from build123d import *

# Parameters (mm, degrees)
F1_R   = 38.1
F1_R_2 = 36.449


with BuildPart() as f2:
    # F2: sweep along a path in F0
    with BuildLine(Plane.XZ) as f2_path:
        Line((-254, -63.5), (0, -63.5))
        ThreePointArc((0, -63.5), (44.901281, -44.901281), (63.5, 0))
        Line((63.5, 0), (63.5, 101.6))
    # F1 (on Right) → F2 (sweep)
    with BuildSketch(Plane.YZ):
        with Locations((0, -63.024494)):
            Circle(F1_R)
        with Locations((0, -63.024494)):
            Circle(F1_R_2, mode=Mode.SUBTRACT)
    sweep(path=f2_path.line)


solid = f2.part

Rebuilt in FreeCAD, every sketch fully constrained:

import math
import FreeCAD as App
import Part
import Sketcher
from FreeCAD import Vector
Q = App.Units.Quantity

doc = App.newDocument("Part")
body = doc.addObject("PartDesign::Body", "Body")

sketch1 = body.newObject("Sketcher::SketchObject", "Sketch")
sketch1.AttachmentSupport = (doc.getObject("YZ_Plane"), [""])
sketch1.MapMode = "FlatFace"
sketch1.addGeometry(Part.Circle(Vector(0, -63, 0), Vector(0, 0, 1), 38), False)
sketch1.addGeometry(Part.Circle(Vector(0, -63, 0), Vector(0, 0, 1), 36), False)
sketch1.addConstraint(Sketcher.Constraint("Coincident", 1, 3, 0, 3))
sketch1.addConstraint(Sketcher.Constraint("PointOnObject", 0, 3, -2))
sketch1.addConstraint(Sketcher.Constraint("Diameter", 0, Q("3 in")))
sketch1.addConstraint(Sketcher.Constraint("Diameter", 1, Q("2.87 in")))
sketch1.addConstraint(Sketcher.Constraint("DistanceY", 0, 3, -1, 1, 63.024494))

sketch2 = body.newObject("Sketcher::SketchObject", "Sketch001")
sketch2.AttachmentSupport = (doc.getObject("XZ_Plane"), [""])
sketch2.MapMode = "FlatFace"
sketch2.addGeometry(Part.LineSegment(Vector(-254, -64, 0), Vector(0, -64, 0)), False)
sketch2.addGeometry(Part.ArcOfCircle(Part.Circle(Vector(0, 0, 0), Vector(0, 0, 1), 63), math.radians(-90), math.radians(0)), False)
sketch2.addGeometry(Part.LineSegment(Vector(64, 0, 0), Vector(64, 102, 0)), False)
sketch2.addConstraint(Sketcher.Constraint("Tangent", 0, 2, 1, 1))
sketch2.addConstraint(Sketcher.Constraint("Tangent", 1, 2, 2, 1))
sketch2.addConstraint(Sketcher.Constraint("Horizontal", 0))
sketch2.addConstraint(Sketcher.Constraint("Vertical", 2))
sketch2.addConstraint(Sketcher.Constraint("Coincident", 1, 3, -1, 1))
sketch2.addConstraint(Sketcher.Constraint("Radius", 1, Q("2.4999999 in")))
sketch2.addConstraint(Sketcher.Constraint("DistanceX", 0, 1, 0, 2, Q("10 in")))
sketch2.addConstraint(Sketcher.Constraint("DistanceY", 2, 1, 2, 2, Q("4 in")))
doc.recompute()

additivepipe = body.newObject("PartDesign::AdditivePipe", "AdditivePipe")
additivepipe.Profile = sketch1
additivepipe.Spine = (sketch2, ["Edge1", "Edge2", "Edge3"])

doc.recompute()
